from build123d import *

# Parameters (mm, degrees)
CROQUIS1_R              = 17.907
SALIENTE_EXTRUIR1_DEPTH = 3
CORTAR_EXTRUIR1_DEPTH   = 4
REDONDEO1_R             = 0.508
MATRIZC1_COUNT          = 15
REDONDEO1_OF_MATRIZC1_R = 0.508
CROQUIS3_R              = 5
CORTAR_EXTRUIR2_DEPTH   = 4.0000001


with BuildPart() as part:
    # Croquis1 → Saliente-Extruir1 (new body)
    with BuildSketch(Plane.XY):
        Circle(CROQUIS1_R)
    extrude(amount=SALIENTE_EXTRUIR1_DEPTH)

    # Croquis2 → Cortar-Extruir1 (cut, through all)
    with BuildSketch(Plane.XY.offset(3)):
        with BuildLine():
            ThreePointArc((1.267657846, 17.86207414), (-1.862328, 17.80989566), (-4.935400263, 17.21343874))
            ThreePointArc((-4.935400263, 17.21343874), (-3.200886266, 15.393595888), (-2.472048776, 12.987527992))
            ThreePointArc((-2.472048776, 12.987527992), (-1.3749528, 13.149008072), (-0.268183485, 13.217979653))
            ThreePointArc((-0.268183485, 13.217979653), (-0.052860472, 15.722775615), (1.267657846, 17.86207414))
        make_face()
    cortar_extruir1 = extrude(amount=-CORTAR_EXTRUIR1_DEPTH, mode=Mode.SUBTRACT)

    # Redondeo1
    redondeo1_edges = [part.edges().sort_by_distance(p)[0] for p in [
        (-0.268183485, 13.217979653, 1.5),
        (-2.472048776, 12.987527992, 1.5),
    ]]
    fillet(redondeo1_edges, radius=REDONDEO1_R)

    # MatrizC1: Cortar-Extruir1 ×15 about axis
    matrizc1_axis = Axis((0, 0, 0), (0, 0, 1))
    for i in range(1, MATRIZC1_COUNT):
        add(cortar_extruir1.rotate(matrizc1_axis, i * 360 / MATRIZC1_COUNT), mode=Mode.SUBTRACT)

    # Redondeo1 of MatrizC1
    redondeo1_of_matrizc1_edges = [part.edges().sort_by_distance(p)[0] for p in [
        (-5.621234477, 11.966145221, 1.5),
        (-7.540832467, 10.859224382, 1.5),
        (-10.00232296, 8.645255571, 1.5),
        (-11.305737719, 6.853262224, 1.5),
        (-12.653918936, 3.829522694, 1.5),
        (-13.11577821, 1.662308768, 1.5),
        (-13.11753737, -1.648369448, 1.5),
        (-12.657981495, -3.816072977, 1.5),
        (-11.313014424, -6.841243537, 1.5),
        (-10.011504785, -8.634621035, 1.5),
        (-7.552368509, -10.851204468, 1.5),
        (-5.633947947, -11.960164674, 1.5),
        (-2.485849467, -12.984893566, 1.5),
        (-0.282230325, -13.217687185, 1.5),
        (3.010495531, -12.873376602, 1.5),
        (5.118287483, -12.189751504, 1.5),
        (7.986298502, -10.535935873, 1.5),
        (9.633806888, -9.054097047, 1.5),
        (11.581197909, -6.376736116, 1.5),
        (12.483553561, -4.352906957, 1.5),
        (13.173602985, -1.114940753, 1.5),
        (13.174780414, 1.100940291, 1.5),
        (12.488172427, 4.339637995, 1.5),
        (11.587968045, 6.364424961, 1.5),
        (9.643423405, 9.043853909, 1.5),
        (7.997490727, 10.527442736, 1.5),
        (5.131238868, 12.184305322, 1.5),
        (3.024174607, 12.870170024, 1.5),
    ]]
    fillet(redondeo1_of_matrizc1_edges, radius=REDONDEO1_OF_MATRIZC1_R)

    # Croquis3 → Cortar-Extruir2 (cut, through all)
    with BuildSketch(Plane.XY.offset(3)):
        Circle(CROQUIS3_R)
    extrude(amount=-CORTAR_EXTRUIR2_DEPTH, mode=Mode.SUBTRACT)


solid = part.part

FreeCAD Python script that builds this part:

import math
import FreeCAD as App
import Part
import Sketcher
from FreeCAD import Vector
Q = App.Units.Quantity


def edges_at(feature, points):
    """Names of the edges that pass closest to the given points."""
    edges = feature.Shape.Edges
    near = lambda p: min(range(len(edges)), key=lambda i: edges[i].distToShape(Part.Vertex(*p))[0])
    return sorted({f"Edge{near(p) + 1}" for p in points})

doc = App.newDocument("Part")
body = doc.addObject("PartDesign::Body", "Body")

# Sketch on XY plane
sketch1 = body.newObject("Sketcher::SketchObject", "Sketch")
sketch1.AttachmentSupport = (doc.getObject("XY_Plane"), [""])
sketch1.MapMode = "FlatFace"
sketch1.addGeometry(Part.Circle(Vector(0, 0, 0), Vector(0, 0, 1), 17.907), False)
sketch1.addConstraint([
    Sketcher.Constraint("Coincident", 0, 3, -1, 1),
    Sketcher.Constraint("Diameter", 0, Q("35.814 mm")),
])
pad1 = body.newObject("PartDesign::Pad", "Pad")
pad1.Profile = sketch1
pad1.Length = 3

# Sketch on XY plane
sketch2 = body.newObject("Sketcher::SketchObject", "Sketch001")
sketch2.AttachmentSupport = (doc.getObject("XY_Plane"), [""])
sketch2.MapMode = "FlatFace"
sketch2.AttachmentOffset = App.Placement(Vector(0, 0, 3), App.Rotation())
sketch2.addGeometry([
    Part.ArcOfCircle(Part.Circle(Vector(0, 0, 0), Vector(0, 0, 1), 17.907), math.radians(85.940568), math.radians(105.998543)),
    Part.ArcOfCircle(Part.Circle(Vector(-7.891686, 12.659253, 0), Vector(0, 0, 1), 5.42957), math.radians(3.466247), math.radians(57.010949)),
    Part.ArcOfCircle(Part.Circle(Vector(0, 0, 0), Vector(0, 0, 1), 13.2207), math.radians(91.162332), math.radians(100.776779)),
    Part.ArcOfCircle(Part.Circle(Vector(5.102127, 14.017978, 0), Vector(0, 0, 1), 5.42957), math.radians(134.928161), math.radians(188.472864)),
], False)
sketch2.addConstraint([
    Sketcher.Constraint("Coincident", 0, 2, 1, 2),
    Sketcher.Constraint("Coincident", 1, 1, 2, 2),
    Sketcher.Constraint("Coincident", 2, 1, 3, 2),
    Sketcher.Constraint("Coincident", 3, 1, 0, 1),
    Sketcher.Constraint("Coincident", 0, 3, -1, 1),
    Sketcher.Constraint("Coincident", 2, 3, -1, 1),
    Sketcher.Constraint("Equal", 1, 3),
    Sketcher.Constraint("Radius", 0, Q("17.907 mm")),
    Sketcher.Constraint("Radius", 2, Q("13.2207 mm")),
    Sketcher.Constraint("DistanceY", 2, 1, 3, 3, Q("0.799998 mm")),
    Sketcher.Constraint("Radius", 1, Q("5.42957 mm")),
    Sketcher.Constraint("DistanceX", 0, 2, -1, 1, Q("4.9354 mm")),
    Sketcher.Constraint("DistanceX", 1, 1, -1, 1, Q("2.472049 mm")),
    Sketcher.Constraint("DistanceY", -1, 1, 2, 1, Q("13.21798 mm")),
])
pocket1 = body.newObject("PartDesign::Pocket", "Pocket")
pocket1.Profile = sketch2
pocket1.Type = "ThroughAll"
doc.recompute()

fillet = body.newObject("PartDesign::Fillet", "Fillet")
fillet.Base = (pocket1, edges_at(pocket1, [(-0.268, 13.218, 1.5), (-2.472, 12.988, 1.5)]))
fillet.Radius = 0.508
doc.recompute()

polarpattern = body.newObject("PartDesign::PolarPattern", "PolarPattern")
polarpattern.Originals = [pocket1]
polarpattern.Axis = (doc.getObject("Z_Axis"), [""])
polarpattern.Angle = 360
polarpattern.Occurrences = 15
body.Tip = polarpattern
doc.recompute()

fillet2 = body.newObject("PartDesign::Fillet", "Fillet001")
fillet2.Base = (polarpattern, edges_at(polarpattern, [
    (-5.621, 11.966, 1.5),
    (-7.541, 10.859, 1.5),
    (-10.002, 8.645, 1.5),
    (-11.306, 6.853, 1.5),
    (-12.654, 3.83, 1.5),
    (-13.116, 1.662, 1.5),
    (-13.118, -1.648, 1.5),
    (-12.658, -3.816, 1.5),
    (-11.313, -6.841, 1.5),
    (-10.012, -8.635, 1.5),
    (-7.552, -10.851, 1.5),
    (-5.634, -11.96, 1.5),
    (-2.486, -12.985, 1.5),
    (-0.282, -13.218, 1.5),
    (3.01, -12.873, 1.5),
    (5.118, -12.19, 1.5),
    (7.986, -10.536, 1.5),
    (9.634, -9.054, 1.5),
    (11.581, -6.377, 1.5),
    (12.484, -4.353, 1.5),
    (13.174, -1.115, 1.5),
    (13.175, 1.101, 1.5),
    (12.488, 4.34, 1.5),
    (11.588, 6.364, 1.5),
    (9.643, 9.044, 1.5),
    (7.997, 10.527, 1.5),
    (5.131, 12.184, 1.5),
    (3.024, 12.87, 1.5),
]))
fillet2.Radius = 0.508

# Sketch on XY plane
sketch3 = body.newObject("Sketcher::SketchObject", "Sketch002")
sketch3.AttachmentSupport = (doc.getObject("XY_Plane"), [""])
sketch3.MapMode = "FlatFace"
sketch3.AttachmentOffset = App.Placement(Vector(0, 0, 3), App.Rotation())
sketch3.addGeometry(Part.Circle(Vector(0, 0, 0), Vector(0, 0, 1), 5), False)
sketch3.addConstraint([
    Sketcher.Constraint("Coincident", 0, 3, -1, 1),
    Sketcher.Constraint("Diameter", 0, Q("10 mm")),
])
pocket2 = body.newObject("PartDesign::Pocket", "Pocket001")
pocket2.Profile = sketch3
pocket2.Type = "ThroughAll"

doc.recompute()
